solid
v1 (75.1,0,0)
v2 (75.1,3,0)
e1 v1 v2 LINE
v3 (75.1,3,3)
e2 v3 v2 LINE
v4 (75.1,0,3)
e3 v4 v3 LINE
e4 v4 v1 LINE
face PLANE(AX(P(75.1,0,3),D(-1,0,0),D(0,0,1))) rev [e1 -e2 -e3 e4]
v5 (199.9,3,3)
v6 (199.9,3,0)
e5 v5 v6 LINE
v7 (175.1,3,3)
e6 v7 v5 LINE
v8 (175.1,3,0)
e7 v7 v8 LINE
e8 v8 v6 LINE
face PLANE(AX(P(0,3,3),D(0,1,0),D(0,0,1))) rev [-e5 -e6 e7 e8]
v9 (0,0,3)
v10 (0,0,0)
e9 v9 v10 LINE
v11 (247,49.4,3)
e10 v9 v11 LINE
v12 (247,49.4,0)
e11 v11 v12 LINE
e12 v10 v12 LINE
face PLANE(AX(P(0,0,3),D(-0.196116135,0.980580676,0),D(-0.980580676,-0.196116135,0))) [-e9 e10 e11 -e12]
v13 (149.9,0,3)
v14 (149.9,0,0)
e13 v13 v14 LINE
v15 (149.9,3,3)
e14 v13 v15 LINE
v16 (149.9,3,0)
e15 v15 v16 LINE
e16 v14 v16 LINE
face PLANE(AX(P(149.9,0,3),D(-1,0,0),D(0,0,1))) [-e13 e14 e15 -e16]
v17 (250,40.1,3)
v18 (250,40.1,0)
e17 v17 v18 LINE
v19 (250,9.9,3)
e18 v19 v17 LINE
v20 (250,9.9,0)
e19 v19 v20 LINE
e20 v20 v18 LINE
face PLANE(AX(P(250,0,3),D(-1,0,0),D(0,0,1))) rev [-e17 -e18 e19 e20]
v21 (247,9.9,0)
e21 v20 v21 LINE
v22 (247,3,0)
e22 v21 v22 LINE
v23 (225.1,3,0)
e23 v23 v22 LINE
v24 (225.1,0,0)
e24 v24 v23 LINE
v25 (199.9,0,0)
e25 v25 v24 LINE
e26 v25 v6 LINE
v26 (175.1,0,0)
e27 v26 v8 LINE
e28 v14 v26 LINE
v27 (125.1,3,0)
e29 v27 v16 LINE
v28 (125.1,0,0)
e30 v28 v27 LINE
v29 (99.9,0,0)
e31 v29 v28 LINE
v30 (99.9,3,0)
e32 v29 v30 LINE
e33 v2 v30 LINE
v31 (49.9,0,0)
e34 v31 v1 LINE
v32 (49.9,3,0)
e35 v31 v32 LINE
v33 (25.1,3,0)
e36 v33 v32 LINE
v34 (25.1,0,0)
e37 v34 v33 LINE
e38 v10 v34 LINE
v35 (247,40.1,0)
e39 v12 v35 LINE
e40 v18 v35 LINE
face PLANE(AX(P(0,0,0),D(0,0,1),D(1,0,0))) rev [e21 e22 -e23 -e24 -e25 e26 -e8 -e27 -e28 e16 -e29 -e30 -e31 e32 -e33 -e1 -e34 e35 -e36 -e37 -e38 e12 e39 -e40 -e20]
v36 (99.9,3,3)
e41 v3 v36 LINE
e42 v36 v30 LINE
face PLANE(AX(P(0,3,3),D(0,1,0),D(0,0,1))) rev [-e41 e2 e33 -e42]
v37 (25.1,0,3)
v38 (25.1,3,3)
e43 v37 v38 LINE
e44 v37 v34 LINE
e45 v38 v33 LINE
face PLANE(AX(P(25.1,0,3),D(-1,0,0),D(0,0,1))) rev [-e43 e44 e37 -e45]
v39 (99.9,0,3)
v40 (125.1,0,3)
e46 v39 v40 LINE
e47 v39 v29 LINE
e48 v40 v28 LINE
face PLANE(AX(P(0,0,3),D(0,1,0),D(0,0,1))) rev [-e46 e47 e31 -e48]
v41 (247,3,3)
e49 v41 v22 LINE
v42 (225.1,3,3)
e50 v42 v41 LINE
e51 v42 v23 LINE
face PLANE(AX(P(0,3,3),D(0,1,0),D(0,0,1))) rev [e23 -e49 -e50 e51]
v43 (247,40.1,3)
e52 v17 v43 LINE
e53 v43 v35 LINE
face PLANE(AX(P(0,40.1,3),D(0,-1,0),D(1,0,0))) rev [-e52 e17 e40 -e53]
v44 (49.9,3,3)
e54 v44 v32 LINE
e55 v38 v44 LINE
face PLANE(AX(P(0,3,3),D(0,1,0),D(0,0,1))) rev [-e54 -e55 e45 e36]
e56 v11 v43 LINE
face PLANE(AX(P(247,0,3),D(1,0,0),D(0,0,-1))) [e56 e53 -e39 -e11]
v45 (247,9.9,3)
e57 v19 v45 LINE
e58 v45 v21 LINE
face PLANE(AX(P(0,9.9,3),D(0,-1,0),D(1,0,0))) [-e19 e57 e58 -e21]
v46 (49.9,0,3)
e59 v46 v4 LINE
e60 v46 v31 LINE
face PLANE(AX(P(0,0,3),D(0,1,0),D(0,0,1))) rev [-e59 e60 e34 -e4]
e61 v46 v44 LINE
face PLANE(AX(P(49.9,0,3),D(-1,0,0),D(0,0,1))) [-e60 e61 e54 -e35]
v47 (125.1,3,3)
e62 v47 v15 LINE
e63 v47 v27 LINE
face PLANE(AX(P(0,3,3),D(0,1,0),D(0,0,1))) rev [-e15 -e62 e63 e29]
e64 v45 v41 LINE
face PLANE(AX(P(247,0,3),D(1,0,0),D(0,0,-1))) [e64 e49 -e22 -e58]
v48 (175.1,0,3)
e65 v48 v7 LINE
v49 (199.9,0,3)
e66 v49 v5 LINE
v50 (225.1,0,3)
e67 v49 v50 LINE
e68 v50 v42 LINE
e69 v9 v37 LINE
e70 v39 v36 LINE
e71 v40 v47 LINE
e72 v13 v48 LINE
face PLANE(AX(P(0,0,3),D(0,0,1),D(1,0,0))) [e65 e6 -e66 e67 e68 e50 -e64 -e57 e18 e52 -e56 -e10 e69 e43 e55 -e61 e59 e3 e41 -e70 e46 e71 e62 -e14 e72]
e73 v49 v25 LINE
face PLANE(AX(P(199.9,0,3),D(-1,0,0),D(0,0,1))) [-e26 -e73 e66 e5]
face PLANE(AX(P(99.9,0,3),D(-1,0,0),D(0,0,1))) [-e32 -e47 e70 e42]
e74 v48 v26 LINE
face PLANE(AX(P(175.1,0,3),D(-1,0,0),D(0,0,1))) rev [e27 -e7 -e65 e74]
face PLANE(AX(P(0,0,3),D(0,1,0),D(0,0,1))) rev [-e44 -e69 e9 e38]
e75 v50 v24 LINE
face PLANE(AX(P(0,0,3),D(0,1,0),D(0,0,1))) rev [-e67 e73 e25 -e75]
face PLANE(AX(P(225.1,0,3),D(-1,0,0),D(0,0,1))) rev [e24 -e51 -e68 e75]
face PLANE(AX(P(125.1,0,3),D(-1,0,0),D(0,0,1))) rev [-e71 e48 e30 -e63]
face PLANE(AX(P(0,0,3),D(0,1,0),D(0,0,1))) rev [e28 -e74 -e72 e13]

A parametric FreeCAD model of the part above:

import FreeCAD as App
import Part
import Sketcher

V = App.Vector

doc = App.newDocument("Part")
body = doc.addObject("PartDesign::Body", "Body")

# Sketch on XY plane
sketch1 = body.newObject("Sketcher::SketchObject", "Sketch")
sketch1.AttachmentSupport = (doc.getObject("XY_Plane"), [""])
sketch1.MapMode = "FlatFace"
sketch1.addGeometry([
    Part.LineSegment(V(247, 49.4, 0), V(0, 0, 0)),  # 0
    Part.LineSegment(V(0, 0, 0), V(25.1, 0, 0)),  # 1
    Part.LineSegment(V(25.1, 0, 0), V(25.1, 3, 0)),  # 2
    Part.LineSegment(V(25.1, 3, 0), V(49.9, 3, 0)),  # 3
    Part.LineSegment(V(49.9, 3, 0), V(49.9, 0, 0)),  # 4
    Part.LineSegment(V(49.9, 0, 0), V(75.1, 0, 0)),  # 5
    Part.LineSegment(V(75.1, 0, 0), V(75.1, 3, 0)),  # 6
    Part.LineSegment(V(75.1, 3, 0), V(99.9, 3, 0)),  # 7
    Part.LineSegment(V(99.9, 3, 0), V(99.9, 0, 0)),  # 8
    Part.LineSegment(V(99.9, 0, 0), V(125.1, 0, 0)),  # 9
    Part.LineSegment(V(125.1, 0, 0), V(125.1, 3, 0)),  # 10
    Part.LineSegment(V(125.1, 3, 0), V(149.9, 3, 0)),  # 11
    Part.LineSegment(V(149.9, 3, 0), V(149.9, 0, 0)),  # 12
    Part.LineSegment(V(149.9, 0, 0), V(175.1, 0, 0)),  # 13
    Part.LineSegment(V(175.1, 0, 0), V(175.1, 3, 0)),  # 14
    Part.LineSegment(V(175.1, 3, 0), V(199.9, 3, 0)),  # 15
    Part.LineSegment(V(199.9, 3, 0), V(199.9, 0, 0)),  # 16
    Part.LineSegment(V(199.9, 0, 0), V(225.1, 0, 0)),  # 17
    Part.LineSegment(V(225.1, 0, 0), V(225.1, 3, 0)),  # 18
    Part.LineSegment(V(225.1, 3, 0), V(247, 3, 0)),  # 19
    Part.LineSegment(V(247, 3, 0), V(247, 9.9, 0)),  # 20
    Part.LineSegment(V(247, 9.9, 0), V(250, 9.9, 0)),  # 21
    Part.LineSegment(V(250, 9.9, 0), V(250, 40.1, 0)),  # 22
    Part.LineSegment(V(250, 40.1, 0), V(247, 40.1, 0)),  # 23
    Part.LineSegment(V(247, 40.1, 0), V(247, 49.4, 0)),  # 24
], False)
sketch1.addConstraint([
    Sketcher.Constraint("Coincident", 0, 2, 1, 1),
    Sketcher.Constraint("Coincident", 1, 2, 2, 1),
    Sketcher.Constraint("Coincident", 2, 2, 3, 1),
    Sketcher.Constraint("Coincident", 3, 2, 4, 1),
    Sketcher.Constraint("Coincident", 4, 2, 5, 1),
    Sketcher.Constraint("Coincident", 5, 2, 6, 1),
    Sketcher.Constraint("Coincident", 6, 2, 7, 1),
    Sketcher.Constraint("Coincident", 7, 2, 8, 1),
    Sketcher.Constraint("Coincident", 8, 2, 9, 1),
    Sketcher.Constraint("Coincident", 9, 2, 10, 1),
    Sketcher.Constraint("Coincident", 10, 2, 11, 1),
    Sketcher.Constraint("Coincident", 11, 2, 12, 1),
    Sketcher.Constraint("Coincident", 12, 2, 13, 1),
    Sketcher.Constraint("Coincident", 13, 2, 14, 1),
    Sketcher.Constraint("Coincident", 14, 2, 15, 1),
    Sketcher.Constraint("Coincident", 15, 2, 16, 1),
    Sketcher.Constraint("Coincident", 16, 2, 17, 1),
    Sketcher.Constraint("Coincident", 17, 2, 18, 1),
    Sketcher.Constraint("Coincident", 18, 2, 19, 1),
    Sketcher.Constraint("Coincident", 19, 2, 20, 1),
    Sketcher.Constraint("Coincident", 20, 2, 21, 1),
    Sketcher.Constraint("Coincident", 21, 2, 22, 1),
    Sketcher.Constraint("Coincident", 22, 2, 23, 1),
    Sketcher.Constraint("Coincident", 23, 2, 24, 1),
    Sketcher.Constraint("Coincident", 24, 2, 0, 1),
    Sketcher.Constraint("Horizontal", 1),
    Sketcher.Constraint("Vertical", 2),
    Sketcher.Constraint("Horizontal", 3),
    Sketcher.Constraint("Vertical", 4),
    Sketcher.Constraint("Horizontal", 5),
    Sketcher.Constraint("Vertical", 6),
    Sketcher.Constraint("Horizontal", 7),
    Sketcher.Constraint("Vertical", 8),
    Sketcher.Constraint("Horizontal", 9),
    Sketcher.Constraint("Vertical", 10),
    Sketcher.Constraint("Horizontal", 11),
    Sketcher.Constraint("Vertical", 12),
    Sketcher.Constraint("Horizontal", 13),
    Sketcher.Constraint("Vertical", 14),
    Sketcher.Constraint("Horizontal", 15),
    Sketcher.Constraint("Vertical", 16),
    Sketcher.Constraint("Horizontal", 17),
    Sketcher.Constraint("Vertical", 18),
    Sketcher.Constraint("Horizontal", 19),
    Sketcher.Constraint("Vertical", 20),
    Sketcher.Constraint("Horizontal", 21),
    Sketcher.Constraint("Vertical", 22),
    Sketcher.Constraint("Horizontal", 23),
    Sketcher.Constraint("Vertical", 24),
    Sketcher.Constraint("Coincident", 0, 2, -1, 1),
    Sketcher.Constraint("PointOnObject", 4, 2, -1),
    Sketcher.Constraint("PointOnObject", 8, 2, -1),
    Sketcher.Constraint("PointOnObject", 12, 2, -1),
    Sketcher.Constraint("PointOnObject", 16, 2, -1),
    Sketcher.Constraint("Horizontal", 3, 2, 6, 2),
    Sketcher.Constraint("Horizontal", 7, 2, 10, 2),
    Sketcher.Constraint("Horizontal", 11, 2, 14, 2),
    Sketcher.Constraint("Horizontal", 15, 2, 18, 2),
    Sketcher.Constraint("Vertical", 20, 2, 23, 2),
    Sketcher.Constraint("Equal", 3, 7),
    Sketcher.Constraint("Equal", 5, 9),
    Sketcher.Constraint("Equal", 7, 11),
    Sketcher.Constraint("Equal", 9, 13),
    Sketcher.Constraint("Equal", 11, 15),
    Sketcher.Constraint("Equal", 13, 17),
    Sketcher.Constraint("Equal", 23, 2),
    Sketcher.Constraint("DistanceX", 21, 1, 21, 2, 3.0),
    Sketcher.Constraint("DistanceX", 1, 1, 1, 2, 25.1),
    Sketcher.Constraint("DistanceX", 3, 1, 3, 2, 24.8),
    Sketcher.Constraint("DistanceX", 5, 1, 5, 2, 25.2),
    Sketcher.Constraint("DistanceX", 19, 1, 19, 2, 21.9),
    Sketcher.Constraint("DistanceY", 20, 1, 20, 2, 6.9),
    Sketcher.Constraint("DistanceY", 22, 1, 22, 2, 30.2),
    Sketcher.Constraint("DistanceY", 24, 1, 24, 2, 9.3),
])
pad1 = body.newObject("PartDesign::Pad", "Pad")
pad1.Profile = sketch1
pad1.Length = 3

doc.recompute()
